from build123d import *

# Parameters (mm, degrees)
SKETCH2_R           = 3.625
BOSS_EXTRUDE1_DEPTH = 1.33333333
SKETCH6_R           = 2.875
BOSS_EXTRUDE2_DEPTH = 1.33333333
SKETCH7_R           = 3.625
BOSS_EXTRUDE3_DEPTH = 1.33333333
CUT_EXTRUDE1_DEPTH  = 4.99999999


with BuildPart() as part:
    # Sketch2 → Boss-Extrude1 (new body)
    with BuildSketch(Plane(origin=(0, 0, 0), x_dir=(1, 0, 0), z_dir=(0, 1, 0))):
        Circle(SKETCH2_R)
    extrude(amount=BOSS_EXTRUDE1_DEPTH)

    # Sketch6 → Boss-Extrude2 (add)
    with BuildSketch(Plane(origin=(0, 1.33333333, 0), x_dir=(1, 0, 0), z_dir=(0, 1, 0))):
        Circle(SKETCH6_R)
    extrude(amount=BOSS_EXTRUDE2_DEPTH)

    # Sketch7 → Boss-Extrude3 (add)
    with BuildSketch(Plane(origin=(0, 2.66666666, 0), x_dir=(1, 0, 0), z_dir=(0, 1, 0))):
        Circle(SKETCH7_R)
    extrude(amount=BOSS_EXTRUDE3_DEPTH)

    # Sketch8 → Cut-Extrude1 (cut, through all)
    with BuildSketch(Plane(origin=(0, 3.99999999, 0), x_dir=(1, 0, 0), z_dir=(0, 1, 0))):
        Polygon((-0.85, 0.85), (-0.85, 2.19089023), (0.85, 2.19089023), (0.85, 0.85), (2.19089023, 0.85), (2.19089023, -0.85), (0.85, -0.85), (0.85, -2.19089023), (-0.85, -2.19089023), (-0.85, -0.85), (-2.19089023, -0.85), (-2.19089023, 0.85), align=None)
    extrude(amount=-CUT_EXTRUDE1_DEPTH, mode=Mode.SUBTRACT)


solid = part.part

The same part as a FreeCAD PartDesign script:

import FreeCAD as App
import Part
import Sketcher
from FreeCAD import Vector


def add_polygon(sketch, points):
    """Adds a closed chain of lines whose ends are joined by coincident constraints."""
    first, n = sketch.GeometryCount, len(points)
    for a, b in zip(points, points[1:] + points[:1]):
        sketch.addGeometry(Part.LineSegment(App.Vector(*a, 0), App.Vector(*b, 0)), False)
    for i in range(n):
        sketch.addConstraint(Sketcher.Constraint("Coincident", first + i, 2, first + (i + 1) % n, 1))

doc = App.newDocument("Part")
body = doc.addObject("PartDesign::Body", "Body")

# Sketch on XZ plane
sketch1 = doc.addObject("Sketcher::SketchObject", "Sketch")
body.addObject(sketch1)
sketch1.AttachmentSupport = (doc.XZ_Plane, [""])
sketch1.MapMode = "FlatFace"
sketch1.addGeometry(Part.Circle(Vector(0, 0, 0), Vector(0, 0, 1), 3.625), False)
sketch1.addConstraint([
    Sketcher.Constraint("Coincident", 0, 3, -1, 1),
    Sketcher.Constraint("Diameter", 0, 7.25),
])
pad1 = doc.addObject("PartDesign::Pad", "Pad")
body.addObject(pad1)
pad1.Profile = sketch1
pad1.Length = 1.333333
pad1.Reversed = True

# Sketch on XZ plane
sketch2 = doc.addObject("Sketcher::SketchObject", "Sketch001")
body.addObject(sketch2)
sketch2.AttachmentSupport = (doc.XZ_Plane, [""])
sketch2.MapMode = "FlatFace"
sketch2.AttachmentOffset = App.Placement(Vector(0, 0, -1.333333), App.Rotation())
sketch2.addGeometry(Part.Circle(Vector(0, 0, 0), Vector(0, 0, 1), 2.875), False)
sketch2.addConstraint([
    Sketcher.Constraint("Coincident", 0, 3, -1, 1),
    Sketcher.Constraint("Diameter", 0, 5.75),
])
pad2 = doc.addObject("PartDesign::Pad", "Pad001")
body.addObject(pad2)
pad2.Profile = sketch2
pad2.Length = 1.333333
pad2.Reversed = True

# Sketch on XZ plane
sketch3 = doc.addObject("Sketcher::SketchObject", "Sketch002")
body.addObject(sketch3)
sketch3.AttachmentSupport = (doc.XZ_Plane, [""])
sketch3.MapMode = "FlatFace"
sketch3.AttachmentOffset = App.Placement(Vector(0, 0, -2.666667), App.Rotation())
sketch3.addGeometry(Part.Circle(Vector(0, 0, 0), Vector(0, 0, 1), 3.625), False)
sketch3.addConstraint([
    Sketcher.Constraint("Coincident", 0, 3, -1, 1),
    Sketcher.Constraint("Diameter", 0, 7.25),
])
pad3 = doc.addObject("PartDesign::Pad", "Pad002")
body.addObject(pad3)
pad3.Profile = sketch3
pad3.Length = 1.333333
pad3.Reversed = True

# Sketch on XZ plane
sketch4 = doc.addObject("Sketcher::SketchObject", "Sketch003")
body.addObject(sketch4)
sketch4.AttachmentSupport = (doc.XZ_Plane, [""])
sketch4.MapMode = "FlatFace"
sketch4.AttachmentOffset = App.Placement(Vector(0, 0, -4), App.Rotation())
add_polygon(sketch4, [(-0.85, -2.19089), (-0.85, -0.85), (-2.19089, -0.85), (-2.19089, 0.85), (-0.85, 0.85), (-0.85, 2.19089), (0.85, 2.19089), (0.85, 0.85), (2.19089, 0.85), (2.19089, -0.85), (0.85, -0.85), (0.85, -2.19089)])  # lines 0-11
sketch4.addConstraint([
    Sketcher.Constraint("Vertical", 0),
    Sketcher.Constraint("Horizontal", 1),
    Sketcher.Constraint("Vertical", 2),
    Sketcher.Constraint("Horizontal", 3),
    Sketcher.Constraint("Vertical", 4),
    Sketcher.Constraint("Horizontal", 5),
    Sketcher.Constraint("Vertical", 6),
    Sketcher.Constraint("Horizontal", 7),
    Sketcher.Constraint("Vertical", 8),
    Sketcher.Constraint("Horizontal", 9),
    Sketcher.Constraint("Vertical", 10),
    Sketcher.Constraint("Horizontal", 11),
    Sketcher.Constraint("Symmetric", 0, 2, 6, 2, -1, 1),
    Sketcher.Constraint("Symmetric", 2, 2, 8, 2, -1, 1),
    Sketcher.Constraint("Symmetric", 4, 2, 10, 2, -1, 1),
    Sketcher.Constraint("Symmetric", 3, 2, 6, 2, -2),
    Sketcher.Constraint("Equal", 9, 0),
    Sketcher.Constraint("Equal", 11, 2),
    Sketcher.Constraint("DistanceX", 5, 1, 5, 2, 1.7),
    Sketcher.Constraint("DistanceX", 1, 2, 1, 1, 1.34089),
])
pocket1 = doc.addObject("PartDesign::Pocket", "Pocket")
body.addObject(pocket1)
pocket1.Profile = sketch4
pocket1.Type = "ThroughAll"
pocket1.Reversed = True

doc.recompute()
